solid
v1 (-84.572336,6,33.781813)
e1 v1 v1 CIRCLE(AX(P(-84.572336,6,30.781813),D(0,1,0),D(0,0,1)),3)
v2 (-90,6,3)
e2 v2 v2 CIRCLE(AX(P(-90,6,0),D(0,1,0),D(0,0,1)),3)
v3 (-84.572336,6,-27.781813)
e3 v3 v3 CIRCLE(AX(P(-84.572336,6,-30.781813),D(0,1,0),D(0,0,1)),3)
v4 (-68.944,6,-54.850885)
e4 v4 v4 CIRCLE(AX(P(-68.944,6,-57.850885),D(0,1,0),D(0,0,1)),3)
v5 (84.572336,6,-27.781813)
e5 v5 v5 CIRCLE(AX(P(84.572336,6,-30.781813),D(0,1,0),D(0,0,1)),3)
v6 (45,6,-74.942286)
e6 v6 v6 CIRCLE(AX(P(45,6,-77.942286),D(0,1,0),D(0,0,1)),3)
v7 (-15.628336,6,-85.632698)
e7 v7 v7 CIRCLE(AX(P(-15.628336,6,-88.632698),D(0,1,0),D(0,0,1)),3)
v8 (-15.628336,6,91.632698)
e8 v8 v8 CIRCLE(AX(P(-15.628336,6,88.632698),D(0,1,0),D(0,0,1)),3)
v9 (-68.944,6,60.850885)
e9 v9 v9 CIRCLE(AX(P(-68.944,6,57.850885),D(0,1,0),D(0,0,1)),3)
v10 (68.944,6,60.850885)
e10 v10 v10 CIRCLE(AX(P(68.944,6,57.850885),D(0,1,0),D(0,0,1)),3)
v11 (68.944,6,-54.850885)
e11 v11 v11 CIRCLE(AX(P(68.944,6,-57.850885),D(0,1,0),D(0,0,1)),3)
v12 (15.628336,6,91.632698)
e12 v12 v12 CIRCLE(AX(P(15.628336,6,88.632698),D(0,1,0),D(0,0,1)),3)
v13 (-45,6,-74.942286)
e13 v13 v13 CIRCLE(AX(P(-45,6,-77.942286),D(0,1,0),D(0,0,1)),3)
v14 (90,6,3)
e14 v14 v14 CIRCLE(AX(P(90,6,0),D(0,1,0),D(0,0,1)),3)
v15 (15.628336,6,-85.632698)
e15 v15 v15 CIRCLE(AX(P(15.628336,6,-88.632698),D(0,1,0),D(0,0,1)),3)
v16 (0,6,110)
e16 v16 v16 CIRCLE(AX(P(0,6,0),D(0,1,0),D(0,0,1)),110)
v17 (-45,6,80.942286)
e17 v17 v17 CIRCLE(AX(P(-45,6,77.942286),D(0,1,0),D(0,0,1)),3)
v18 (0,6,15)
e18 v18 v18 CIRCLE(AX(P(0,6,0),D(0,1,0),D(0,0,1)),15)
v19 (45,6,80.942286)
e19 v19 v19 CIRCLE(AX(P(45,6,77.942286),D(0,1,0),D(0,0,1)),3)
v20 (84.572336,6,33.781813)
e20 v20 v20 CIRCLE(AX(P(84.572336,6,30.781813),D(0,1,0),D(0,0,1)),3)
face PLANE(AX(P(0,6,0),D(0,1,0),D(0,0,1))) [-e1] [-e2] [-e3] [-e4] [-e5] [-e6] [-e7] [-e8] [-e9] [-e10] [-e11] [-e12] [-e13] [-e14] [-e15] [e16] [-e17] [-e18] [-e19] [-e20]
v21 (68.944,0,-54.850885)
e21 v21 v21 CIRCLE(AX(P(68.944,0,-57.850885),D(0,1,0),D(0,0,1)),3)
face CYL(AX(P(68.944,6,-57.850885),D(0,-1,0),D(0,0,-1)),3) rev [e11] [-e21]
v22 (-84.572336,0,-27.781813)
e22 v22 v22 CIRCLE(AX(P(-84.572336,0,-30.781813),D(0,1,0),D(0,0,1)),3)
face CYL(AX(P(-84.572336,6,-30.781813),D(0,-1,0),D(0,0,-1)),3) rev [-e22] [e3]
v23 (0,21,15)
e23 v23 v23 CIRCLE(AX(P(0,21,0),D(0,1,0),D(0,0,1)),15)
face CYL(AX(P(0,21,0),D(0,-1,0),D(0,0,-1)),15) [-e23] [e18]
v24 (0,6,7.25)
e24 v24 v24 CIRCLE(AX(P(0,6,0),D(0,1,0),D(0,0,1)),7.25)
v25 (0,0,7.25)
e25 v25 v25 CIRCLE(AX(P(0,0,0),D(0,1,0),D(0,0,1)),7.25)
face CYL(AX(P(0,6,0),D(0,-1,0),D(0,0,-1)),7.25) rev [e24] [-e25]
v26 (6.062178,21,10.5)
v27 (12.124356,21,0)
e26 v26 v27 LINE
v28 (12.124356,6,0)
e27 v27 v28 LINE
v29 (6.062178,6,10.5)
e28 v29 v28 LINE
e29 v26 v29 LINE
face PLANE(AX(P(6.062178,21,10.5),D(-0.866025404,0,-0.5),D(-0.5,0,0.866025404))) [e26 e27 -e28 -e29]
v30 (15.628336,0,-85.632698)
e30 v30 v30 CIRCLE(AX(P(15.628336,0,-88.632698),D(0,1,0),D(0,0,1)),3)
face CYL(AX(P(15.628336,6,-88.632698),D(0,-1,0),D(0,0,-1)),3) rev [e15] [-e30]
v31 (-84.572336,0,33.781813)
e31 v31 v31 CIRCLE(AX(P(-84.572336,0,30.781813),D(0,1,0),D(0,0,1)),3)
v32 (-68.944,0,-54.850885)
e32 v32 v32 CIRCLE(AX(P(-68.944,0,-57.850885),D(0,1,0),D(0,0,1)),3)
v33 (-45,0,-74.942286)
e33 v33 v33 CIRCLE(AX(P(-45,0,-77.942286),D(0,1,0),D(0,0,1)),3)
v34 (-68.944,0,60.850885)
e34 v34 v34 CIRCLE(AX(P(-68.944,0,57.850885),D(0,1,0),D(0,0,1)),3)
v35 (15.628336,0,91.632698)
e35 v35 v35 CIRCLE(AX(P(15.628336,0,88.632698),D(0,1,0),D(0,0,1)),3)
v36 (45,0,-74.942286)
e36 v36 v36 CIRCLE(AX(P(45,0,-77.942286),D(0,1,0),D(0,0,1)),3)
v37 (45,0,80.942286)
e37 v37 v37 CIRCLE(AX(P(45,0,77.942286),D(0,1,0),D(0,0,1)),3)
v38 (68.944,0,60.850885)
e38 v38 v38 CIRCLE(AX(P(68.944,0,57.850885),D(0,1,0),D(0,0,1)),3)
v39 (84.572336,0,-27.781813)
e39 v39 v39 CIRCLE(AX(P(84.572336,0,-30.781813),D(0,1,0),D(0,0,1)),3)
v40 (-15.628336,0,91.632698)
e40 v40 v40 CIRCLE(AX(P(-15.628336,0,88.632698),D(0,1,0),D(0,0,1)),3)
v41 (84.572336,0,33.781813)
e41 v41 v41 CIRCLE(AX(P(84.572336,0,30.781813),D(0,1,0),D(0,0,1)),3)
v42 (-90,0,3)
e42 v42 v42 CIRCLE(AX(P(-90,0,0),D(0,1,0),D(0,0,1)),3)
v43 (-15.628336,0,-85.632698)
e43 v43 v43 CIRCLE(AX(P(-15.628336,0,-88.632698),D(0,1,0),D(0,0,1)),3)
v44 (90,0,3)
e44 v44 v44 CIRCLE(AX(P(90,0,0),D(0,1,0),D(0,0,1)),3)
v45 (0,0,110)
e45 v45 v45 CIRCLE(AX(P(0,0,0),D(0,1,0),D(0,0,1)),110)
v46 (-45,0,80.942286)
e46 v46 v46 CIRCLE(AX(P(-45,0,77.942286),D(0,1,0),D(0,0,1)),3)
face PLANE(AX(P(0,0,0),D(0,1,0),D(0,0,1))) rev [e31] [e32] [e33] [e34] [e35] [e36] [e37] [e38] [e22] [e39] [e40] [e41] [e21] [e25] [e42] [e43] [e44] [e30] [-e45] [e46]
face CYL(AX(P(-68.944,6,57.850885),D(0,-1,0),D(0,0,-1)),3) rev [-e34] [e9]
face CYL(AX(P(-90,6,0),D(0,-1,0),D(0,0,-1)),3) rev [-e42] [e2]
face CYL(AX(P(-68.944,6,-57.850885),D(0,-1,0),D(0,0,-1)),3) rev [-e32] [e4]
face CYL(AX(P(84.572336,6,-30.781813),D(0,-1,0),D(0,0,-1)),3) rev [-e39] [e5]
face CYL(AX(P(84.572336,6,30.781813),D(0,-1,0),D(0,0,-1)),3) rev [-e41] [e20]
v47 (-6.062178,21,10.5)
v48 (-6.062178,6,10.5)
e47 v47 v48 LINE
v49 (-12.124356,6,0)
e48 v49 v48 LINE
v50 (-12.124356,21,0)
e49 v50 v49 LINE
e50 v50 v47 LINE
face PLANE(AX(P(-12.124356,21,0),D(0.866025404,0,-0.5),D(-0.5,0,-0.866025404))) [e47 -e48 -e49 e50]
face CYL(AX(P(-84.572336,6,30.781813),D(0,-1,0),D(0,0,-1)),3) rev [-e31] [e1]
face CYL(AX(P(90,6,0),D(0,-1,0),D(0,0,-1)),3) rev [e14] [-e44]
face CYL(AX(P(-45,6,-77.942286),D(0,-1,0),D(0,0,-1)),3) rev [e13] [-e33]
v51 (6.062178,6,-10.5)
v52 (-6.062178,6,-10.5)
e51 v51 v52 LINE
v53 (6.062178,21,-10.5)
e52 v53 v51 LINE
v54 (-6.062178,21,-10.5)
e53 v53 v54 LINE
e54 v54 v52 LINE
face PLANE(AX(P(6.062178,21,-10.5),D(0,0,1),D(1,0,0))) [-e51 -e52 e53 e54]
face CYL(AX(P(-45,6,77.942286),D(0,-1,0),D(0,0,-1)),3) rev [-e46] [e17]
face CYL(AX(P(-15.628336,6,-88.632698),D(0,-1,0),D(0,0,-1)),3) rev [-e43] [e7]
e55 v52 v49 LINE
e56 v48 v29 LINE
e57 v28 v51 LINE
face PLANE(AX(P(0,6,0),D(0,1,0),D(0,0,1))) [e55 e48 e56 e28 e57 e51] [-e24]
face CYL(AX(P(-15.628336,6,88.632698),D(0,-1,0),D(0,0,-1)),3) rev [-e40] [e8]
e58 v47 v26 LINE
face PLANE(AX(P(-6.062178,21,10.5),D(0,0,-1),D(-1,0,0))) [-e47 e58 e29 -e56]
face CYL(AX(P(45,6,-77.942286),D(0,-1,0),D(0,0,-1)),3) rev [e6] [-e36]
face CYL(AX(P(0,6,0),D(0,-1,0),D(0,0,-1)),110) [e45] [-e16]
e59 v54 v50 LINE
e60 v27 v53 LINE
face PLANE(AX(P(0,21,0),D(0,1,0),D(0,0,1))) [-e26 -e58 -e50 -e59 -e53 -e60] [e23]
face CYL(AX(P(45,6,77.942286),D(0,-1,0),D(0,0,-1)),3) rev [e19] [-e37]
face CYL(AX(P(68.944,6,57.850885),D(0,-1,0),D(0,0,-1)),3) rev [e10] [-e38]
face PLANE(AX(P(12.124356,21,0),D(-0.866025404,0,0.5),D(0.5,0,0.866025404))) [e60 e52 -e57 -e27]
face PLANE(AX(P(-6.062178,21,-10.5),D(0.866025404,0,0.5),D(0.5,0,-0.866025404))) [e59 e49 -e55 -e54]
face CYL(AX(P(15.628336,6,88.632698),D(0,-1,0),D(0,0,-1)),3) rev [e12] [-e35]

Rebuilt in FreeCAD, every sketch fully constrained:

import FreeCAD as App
import Part
import Sketcher

V = App.Vector
Q = App.Units.Quantity


def add_polygon(sketch, points):
    """Adds a closed chain of lines whose ends are joined by coincident constraints."""
    first, n = sketch.GeometryCount, len(points)
    for a, b in zip(points, points[1:] + points[:1]):
        sketch.addGeometry(Part.LineSegment(App.Vector(*a, 0), App.Vector(*b, 0)), False)
    for i in range(n):
        sketch.addConstraint(Sketcher.Constraint("Coincident", first + i, 2, first + (i + 1) % n, 1))

doc = App.newDocument("Part")
body = doc.addObject("PartDesign::Body", "Body")

# Sketch on XZ plane
sketch1 = doc.addObject("Sketcher::SketchObject", "Sketch")
body.addObject(sketch1)
sketch1.AttachmentSupport = (doc.XZ_Plane, [""])
sketch1.MapMode = "FlatFace"
sketch1.addGeometry(Part.Circle(V(0, 0, 0), V(0, 0, 1), 110), False)
sketch1.addGeometry(Part.Circle(V(-68.9, -57.9, 0), V(0, 0, 1), 3), False)
sketch1.addGeometry(Part.Circle(V(-84.6, -30.8, 0), V(0, 0, 1), 3), False)
sketch1.addGeometry(Part.Circle(V(-45, -77.9, 0), V(0, 0, 1), 3), False)
sketch1.addGeometry(Part.Circle(V(-15.6, -88.6, 0), V(0, 0, 1), 3), False)
sketch1.addGeometry(Part.Circle(V(-90, 0, 0), V(0, 0, 1), 3), False)
sketch1.addGeometry(Part.Circle(V(-84.6, 30.8, 0), V(0, 0, 1), 3), False)
sketch1.addGeometry(Part.Circle(V(-68.9, 57.9, 0), V(0, 0, 1), 3), False)
sketch1.addGeometry(Part.Circle(V(-45, 77.9, 0), V(0, 0, 1), 3), False)
sketch1.addGeometry(Part.Circle(V(-15.6, 88.6, 0), V(0, 0, 1), 3), False)
sketch1.addGeometry(Part.Circle(V(15.6, -88.6, 0), V(0, 0, 1), 3), False)
sketch1.addGeometry(Part.Circle(V(45, -77.9, 0), V(0, 0, 1), 3), False)
sketch1.addGeometry(Part.Circle(V(68.9, -57.9, 0), V(0, 0, 1), 3), False)
sketch1.addGeometry(Part.Circle(V(84.6, -30.8, 0), V(0, 0, 1), 3), False)
sketch1.addGeometry(Part.Circle(V(90, 0, 0), V(0, 0, 1), 3), False)
sketch1.addGeometry(Part.Circle(V(0, 0, 0), V(0, 0, 1), 7.2), False)
sketch1.addGeometry(Part.Circle(V(15.6, 88.6, 0), V(0, 0, 1), 3), False)
sketch1.addGeometry(Part.Circle(V(45, 77.9, 0), V(0, 0, 1), 3), False)
sketch1.addGeometry(Part.Circle(V(84.6, 30.8, 0), V(0, 0, 1), 3), False)
sketch1.addGeometry(Part.Circle(V(68.9, 57.9, 0), V(0, 0, 1), 3), False)
sketch1.addConstraint(Sketcher.Constraint("Coincident", 0, 3, -1, 1))
sketch1.addConstraint(Sketcher.Constraint("Coincident", 15, 3, -1, 1))
sketch1.addConstraint(Sketcher.Constraint("Equal", 1, 2))
sketch1.addConstraint(Sketcher.Constraint("Equal", 2, 3))
sketch1.addConstraint(Sketcher.Constraint("Equal", 3, 4))
sketch1.addConstraint(Sketcher.Constraint("Equal", 4, 5))
sketch1.addConstraint(Sketcher.Constraint("Equal", 5, 6))
sketch1.addConstraint(Sketcher.Constraint("Equal", 6, 7))
sketch1.addConstraint(Sketcher.Constraint("Equal", 7, 8))
sketch1.addConstraint(Sketcher.Constraint("Equal", 8, 9))
sketch1.addConstraint(Sketcher.Constraint("Equal", 9, 10))
sketch1.addConstraint(Sketcher.Constraint("Equal", 10, 11))
sketch1.addConstraint(Sketcher.Constraint("Equal", 11, 12))
sketch1.addConstraint(Sketcher.Constraint("Equal", 12, 13))
sketch1.addConstraint(Sketcher.Constraint("Equal", 13, 14))
sketch1.addConstraint(Sketcher.Constraint("Equal", 14, 16))
sketch1.addConstraint(Sketcher.Constraint("Equal", 16, 17))
sketch1.addConstraint(Sketcher.Constraint("Equal", 17, 18))
sketch1.addConstraint(Sketcher.Constraint("Equal", 18, 19))
sketch1.addConstraint(Sketcher.Constraint("Symmetric", 9, 3, 10, 3, -1, 1))
sketch1.addConstraint(Sketcher.Constraint("Symmetric", 8, 3, 11, 3, -1, 1))
sketch1.addConstraint(Sketcher.Constraint("Symmetric", 7, 3, 12, 3, -1, 1))
sketch1.addConstraint(Sketcher.Constraint("Symmetric", 6, 3, 13, 3, -1, 1))
sketch1.addConstraint(Sketcher.Constraint("Symmetric", 5, 3, 14, 3, -1, 1))
sketch1.addConstraint(Sketcher.Constraint("Symmetric", 4, 3, 16, 3, -1, 1))
sketch1.addConstraint(Sketcher.Constraint("Symmetric", 3, 3, 17, 3, -1, 1))
sketch1.addConstraint(Sketcher.Constraint("Symmetric", 2, 3, 18, 3, -1, 1))
sketch1.addConstraint(Sketcher.Constraint("Symmetric", 1, 3, 19, 3, -1, 1))
sketch1.addConstraint(Sketcher.Constraint("Symmetric", 4, 3, 10, 3, -2))
sketch1.addConstraint(Sketcher.Constraint("Symmetric", 3, 3, 11, 3, -2))
sketch1.addConstraint(Sketcher.Constraint("Symmetric", 1, 3, 12, 3, -2))
sketch1.addConstraint(Sketcher.Constraint("Symmetric", 2, 3, 13, 3, -2))
sketch1.addConstraint(Sketcher.Constraint("PointOnObject", 5, 3, -1))
sketch1.addConstraint(Sketcher.Constraint("Diameter", 0, Q("220 mm")))
sketch1.addConstraint(Sketcher.Constraint("Diameter", 1, Q("6 mm")))
sketch1.addConstraint(Sketcher.Constraint("Diameter", 15, Q("14.5 mm")))
sketch1.addConstraint(Sketcher.Constraint("DistanceX", 3, 3, -1, 1, Q("45 mm")))
sketch1.addConstraint(Sketcher.Constraint("DistanceX", 5, 3, -1, 1, Q("90 mm")))
sketch1.addConstraint(Sketcher.Constraint("DistanceX", 1, 3, -1, 1, Q("68.944 mm")))
sketch1.addConstraint(Sketcher.Constraint("DistanceX", 2, 3, 4, 3, Q("68.944 mm")))
sketch1.addConstraint(Sketcher.Constraint("DistanceY", 3, 3, 1, 3, Q("20.091401 mm")))
sketch1.addConstraint(Sketcher.Constraint("DistanceY", 3, 3, 6, 3, Q("108.724099 mm")))
sketch1.addConstraint(Sketcher.Constraint("DistanceY", 1, 3, 2, 3, Q("27.069072 mm")))
sketch1.addConstraint(Sketcher.Constraint("DistanceY", 4, 3, 3, 3, Q("10.690411 mm")))
sketch1.addConstraint(Sketcher.Constraint("DistanceX", 4, 3, 10, 3, Q("31.256672 mm")))
pad1 = doc.addObject("PartDesign::Pad", "Pad")
body.addObject(pad1)
pad1.Profile = sketch1
pad1.Length = 6
pad1.Reversed = True

# Sketch on XZ plane
sketch2 = doc.addObject("Sketcher::SketchObject", "Sketch001")
body.addObject(sketch2)
sketch2.AttachmentSupport = (doc.XZ_Plane, [""])
sketch2.MapMode = "FlatFace"
sketch2.AttachmentOffset = App.Placement(V(0, 0, -6), App.Rotation())
sketch2.addGeometry(Part.Circle(V(0, 0, 0), V(0, 0, 1), 15), False)  # 0
add_polygon(sketch2, [(-12, 0), (-6, -10), (6, -10), (12, 0), (6, 10), (-6, 10)])  # lines 1-6
sketch2.addConstraint(Sketcher.Constraint("Horizontal", 2))
sketch2.addConstraint(Sketcher.Constraint("Horizontal", 5))
sketch2.addConstraint(Sketcher.Constraint("Coincident", 0, 3, -1, 1))
sketch2.addConstraint(Sketcher.Constraint("Symmetric", 1, 2, 4, 2, -1, 1))
sketch2.addConstraint(Sketcher.Constraint("Symmetric", 3, 2, 6, 2, -1, 1))
sketch2.addConstraint(Sketcher.Constraint("PointOnObject", 3, 2, -1))
sketch2.addConstraint(Sketcher.Constraint("Parallel", 3, 6))
sketch2.addConstraint(Sketcher.Constraint("Vertical", 2, 2, 4, 2))
sketch2.addConstraint(Sketcher.Constraint("Diameter", 0, Q("30 mm")))
sketch2.addConstraint(Sketcher.Constraint("Angle", 1, Q("-60 deg")))
sketch2.addConstraint(Sketcher.Constraint("DistanceY", 2, 2, 4, 2, Q("21 mm")))
sketch2.addConstraint(Sketcher.Constraint("DistanceX", 2, 1, 2, 2, Q("12.124356 mm")))
pad2 = doc.addObject("PartDesign::Pad", "Pad001")
body.addObject(pad2)
pad2.Profile = sketch2
pad2.Length = 15
pad2.Reversed = True

doc.recompute()
